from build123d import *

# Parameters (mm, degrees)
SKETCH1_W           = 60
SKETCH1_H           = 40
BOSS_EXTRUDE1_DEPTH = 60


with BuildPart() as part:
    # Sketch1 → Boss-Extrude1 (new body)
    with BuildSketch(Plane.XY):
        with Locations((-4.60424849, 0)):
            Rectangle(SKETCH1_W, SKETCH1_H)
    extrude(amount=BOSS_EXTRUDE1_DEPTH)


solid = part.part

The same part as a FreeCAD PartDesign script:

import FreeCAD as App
import Part
import Sketcher
from FreeCAD import Vector

doc = App.newDocument("Part")
body = doc.addObject("PartDesign::Body", "Body")

# Sketch on XY plane
sketch1 = doc.addObject("Sketcher::SketchObject", "Sketch")
body.addObject(sketch1)
sketch1.AttachmentSupport = (doc.XY_Plane, [""])
sketch1.MapMode = "FlatFace"
sketch1.addGeometry([
    Part.LineSegment(Vector(-35, 20, 0), Vector(-35, -20, 0)),
    Part.LineSegment(Vector(-35, -20, 0), Vector(25, -20, 0)),
    Part.LineSegment(Vector(25, -20, 0), Vector(25, 20, 0)),
    Part.LineSegment(Vector(25, 20, 0), Vector(-35, 20, 0)),
], False)
sketch1.addConstraint([
    Sketcher.Constraint("Coincident", 0, 2, 1, 1),
    Sketcher.Constraint("Coincident", 1, 2, 2, 1),
    Sketcher.Constraint("Coincident", 2, 2, 3, 1),
    Sketcher.Constraint("Coincident", 3, 2, 0, 1),
    Sketcher.Constraint("Vertical", 0),
    Sketcher.Constraint("Horizontal", 1),
    Sketcher.Constraint("Vertical", 2),
    Sketcher.Constraint("Horizontal", 3),
    Sketcher.Constraint("DistanceX", 1, 1, 1, 2, 60.0),
    Sketcher.Constraint("DistanceY", 0, 2, 0, 1, 40.0),
    Sketcher.Constraint("DistanceY", 0, 2, -1, 1, 20.0),
    Sketcher.Constraint("DistanceX", 0, 2, -1, 1, 34.604248),
])
pad1 = doc.addObject("PartDesign::Pad", "Pad")
body.addObject(pad1)
pad1.Profile = sketch1
pad1.Length = 60

doc.recompute()
